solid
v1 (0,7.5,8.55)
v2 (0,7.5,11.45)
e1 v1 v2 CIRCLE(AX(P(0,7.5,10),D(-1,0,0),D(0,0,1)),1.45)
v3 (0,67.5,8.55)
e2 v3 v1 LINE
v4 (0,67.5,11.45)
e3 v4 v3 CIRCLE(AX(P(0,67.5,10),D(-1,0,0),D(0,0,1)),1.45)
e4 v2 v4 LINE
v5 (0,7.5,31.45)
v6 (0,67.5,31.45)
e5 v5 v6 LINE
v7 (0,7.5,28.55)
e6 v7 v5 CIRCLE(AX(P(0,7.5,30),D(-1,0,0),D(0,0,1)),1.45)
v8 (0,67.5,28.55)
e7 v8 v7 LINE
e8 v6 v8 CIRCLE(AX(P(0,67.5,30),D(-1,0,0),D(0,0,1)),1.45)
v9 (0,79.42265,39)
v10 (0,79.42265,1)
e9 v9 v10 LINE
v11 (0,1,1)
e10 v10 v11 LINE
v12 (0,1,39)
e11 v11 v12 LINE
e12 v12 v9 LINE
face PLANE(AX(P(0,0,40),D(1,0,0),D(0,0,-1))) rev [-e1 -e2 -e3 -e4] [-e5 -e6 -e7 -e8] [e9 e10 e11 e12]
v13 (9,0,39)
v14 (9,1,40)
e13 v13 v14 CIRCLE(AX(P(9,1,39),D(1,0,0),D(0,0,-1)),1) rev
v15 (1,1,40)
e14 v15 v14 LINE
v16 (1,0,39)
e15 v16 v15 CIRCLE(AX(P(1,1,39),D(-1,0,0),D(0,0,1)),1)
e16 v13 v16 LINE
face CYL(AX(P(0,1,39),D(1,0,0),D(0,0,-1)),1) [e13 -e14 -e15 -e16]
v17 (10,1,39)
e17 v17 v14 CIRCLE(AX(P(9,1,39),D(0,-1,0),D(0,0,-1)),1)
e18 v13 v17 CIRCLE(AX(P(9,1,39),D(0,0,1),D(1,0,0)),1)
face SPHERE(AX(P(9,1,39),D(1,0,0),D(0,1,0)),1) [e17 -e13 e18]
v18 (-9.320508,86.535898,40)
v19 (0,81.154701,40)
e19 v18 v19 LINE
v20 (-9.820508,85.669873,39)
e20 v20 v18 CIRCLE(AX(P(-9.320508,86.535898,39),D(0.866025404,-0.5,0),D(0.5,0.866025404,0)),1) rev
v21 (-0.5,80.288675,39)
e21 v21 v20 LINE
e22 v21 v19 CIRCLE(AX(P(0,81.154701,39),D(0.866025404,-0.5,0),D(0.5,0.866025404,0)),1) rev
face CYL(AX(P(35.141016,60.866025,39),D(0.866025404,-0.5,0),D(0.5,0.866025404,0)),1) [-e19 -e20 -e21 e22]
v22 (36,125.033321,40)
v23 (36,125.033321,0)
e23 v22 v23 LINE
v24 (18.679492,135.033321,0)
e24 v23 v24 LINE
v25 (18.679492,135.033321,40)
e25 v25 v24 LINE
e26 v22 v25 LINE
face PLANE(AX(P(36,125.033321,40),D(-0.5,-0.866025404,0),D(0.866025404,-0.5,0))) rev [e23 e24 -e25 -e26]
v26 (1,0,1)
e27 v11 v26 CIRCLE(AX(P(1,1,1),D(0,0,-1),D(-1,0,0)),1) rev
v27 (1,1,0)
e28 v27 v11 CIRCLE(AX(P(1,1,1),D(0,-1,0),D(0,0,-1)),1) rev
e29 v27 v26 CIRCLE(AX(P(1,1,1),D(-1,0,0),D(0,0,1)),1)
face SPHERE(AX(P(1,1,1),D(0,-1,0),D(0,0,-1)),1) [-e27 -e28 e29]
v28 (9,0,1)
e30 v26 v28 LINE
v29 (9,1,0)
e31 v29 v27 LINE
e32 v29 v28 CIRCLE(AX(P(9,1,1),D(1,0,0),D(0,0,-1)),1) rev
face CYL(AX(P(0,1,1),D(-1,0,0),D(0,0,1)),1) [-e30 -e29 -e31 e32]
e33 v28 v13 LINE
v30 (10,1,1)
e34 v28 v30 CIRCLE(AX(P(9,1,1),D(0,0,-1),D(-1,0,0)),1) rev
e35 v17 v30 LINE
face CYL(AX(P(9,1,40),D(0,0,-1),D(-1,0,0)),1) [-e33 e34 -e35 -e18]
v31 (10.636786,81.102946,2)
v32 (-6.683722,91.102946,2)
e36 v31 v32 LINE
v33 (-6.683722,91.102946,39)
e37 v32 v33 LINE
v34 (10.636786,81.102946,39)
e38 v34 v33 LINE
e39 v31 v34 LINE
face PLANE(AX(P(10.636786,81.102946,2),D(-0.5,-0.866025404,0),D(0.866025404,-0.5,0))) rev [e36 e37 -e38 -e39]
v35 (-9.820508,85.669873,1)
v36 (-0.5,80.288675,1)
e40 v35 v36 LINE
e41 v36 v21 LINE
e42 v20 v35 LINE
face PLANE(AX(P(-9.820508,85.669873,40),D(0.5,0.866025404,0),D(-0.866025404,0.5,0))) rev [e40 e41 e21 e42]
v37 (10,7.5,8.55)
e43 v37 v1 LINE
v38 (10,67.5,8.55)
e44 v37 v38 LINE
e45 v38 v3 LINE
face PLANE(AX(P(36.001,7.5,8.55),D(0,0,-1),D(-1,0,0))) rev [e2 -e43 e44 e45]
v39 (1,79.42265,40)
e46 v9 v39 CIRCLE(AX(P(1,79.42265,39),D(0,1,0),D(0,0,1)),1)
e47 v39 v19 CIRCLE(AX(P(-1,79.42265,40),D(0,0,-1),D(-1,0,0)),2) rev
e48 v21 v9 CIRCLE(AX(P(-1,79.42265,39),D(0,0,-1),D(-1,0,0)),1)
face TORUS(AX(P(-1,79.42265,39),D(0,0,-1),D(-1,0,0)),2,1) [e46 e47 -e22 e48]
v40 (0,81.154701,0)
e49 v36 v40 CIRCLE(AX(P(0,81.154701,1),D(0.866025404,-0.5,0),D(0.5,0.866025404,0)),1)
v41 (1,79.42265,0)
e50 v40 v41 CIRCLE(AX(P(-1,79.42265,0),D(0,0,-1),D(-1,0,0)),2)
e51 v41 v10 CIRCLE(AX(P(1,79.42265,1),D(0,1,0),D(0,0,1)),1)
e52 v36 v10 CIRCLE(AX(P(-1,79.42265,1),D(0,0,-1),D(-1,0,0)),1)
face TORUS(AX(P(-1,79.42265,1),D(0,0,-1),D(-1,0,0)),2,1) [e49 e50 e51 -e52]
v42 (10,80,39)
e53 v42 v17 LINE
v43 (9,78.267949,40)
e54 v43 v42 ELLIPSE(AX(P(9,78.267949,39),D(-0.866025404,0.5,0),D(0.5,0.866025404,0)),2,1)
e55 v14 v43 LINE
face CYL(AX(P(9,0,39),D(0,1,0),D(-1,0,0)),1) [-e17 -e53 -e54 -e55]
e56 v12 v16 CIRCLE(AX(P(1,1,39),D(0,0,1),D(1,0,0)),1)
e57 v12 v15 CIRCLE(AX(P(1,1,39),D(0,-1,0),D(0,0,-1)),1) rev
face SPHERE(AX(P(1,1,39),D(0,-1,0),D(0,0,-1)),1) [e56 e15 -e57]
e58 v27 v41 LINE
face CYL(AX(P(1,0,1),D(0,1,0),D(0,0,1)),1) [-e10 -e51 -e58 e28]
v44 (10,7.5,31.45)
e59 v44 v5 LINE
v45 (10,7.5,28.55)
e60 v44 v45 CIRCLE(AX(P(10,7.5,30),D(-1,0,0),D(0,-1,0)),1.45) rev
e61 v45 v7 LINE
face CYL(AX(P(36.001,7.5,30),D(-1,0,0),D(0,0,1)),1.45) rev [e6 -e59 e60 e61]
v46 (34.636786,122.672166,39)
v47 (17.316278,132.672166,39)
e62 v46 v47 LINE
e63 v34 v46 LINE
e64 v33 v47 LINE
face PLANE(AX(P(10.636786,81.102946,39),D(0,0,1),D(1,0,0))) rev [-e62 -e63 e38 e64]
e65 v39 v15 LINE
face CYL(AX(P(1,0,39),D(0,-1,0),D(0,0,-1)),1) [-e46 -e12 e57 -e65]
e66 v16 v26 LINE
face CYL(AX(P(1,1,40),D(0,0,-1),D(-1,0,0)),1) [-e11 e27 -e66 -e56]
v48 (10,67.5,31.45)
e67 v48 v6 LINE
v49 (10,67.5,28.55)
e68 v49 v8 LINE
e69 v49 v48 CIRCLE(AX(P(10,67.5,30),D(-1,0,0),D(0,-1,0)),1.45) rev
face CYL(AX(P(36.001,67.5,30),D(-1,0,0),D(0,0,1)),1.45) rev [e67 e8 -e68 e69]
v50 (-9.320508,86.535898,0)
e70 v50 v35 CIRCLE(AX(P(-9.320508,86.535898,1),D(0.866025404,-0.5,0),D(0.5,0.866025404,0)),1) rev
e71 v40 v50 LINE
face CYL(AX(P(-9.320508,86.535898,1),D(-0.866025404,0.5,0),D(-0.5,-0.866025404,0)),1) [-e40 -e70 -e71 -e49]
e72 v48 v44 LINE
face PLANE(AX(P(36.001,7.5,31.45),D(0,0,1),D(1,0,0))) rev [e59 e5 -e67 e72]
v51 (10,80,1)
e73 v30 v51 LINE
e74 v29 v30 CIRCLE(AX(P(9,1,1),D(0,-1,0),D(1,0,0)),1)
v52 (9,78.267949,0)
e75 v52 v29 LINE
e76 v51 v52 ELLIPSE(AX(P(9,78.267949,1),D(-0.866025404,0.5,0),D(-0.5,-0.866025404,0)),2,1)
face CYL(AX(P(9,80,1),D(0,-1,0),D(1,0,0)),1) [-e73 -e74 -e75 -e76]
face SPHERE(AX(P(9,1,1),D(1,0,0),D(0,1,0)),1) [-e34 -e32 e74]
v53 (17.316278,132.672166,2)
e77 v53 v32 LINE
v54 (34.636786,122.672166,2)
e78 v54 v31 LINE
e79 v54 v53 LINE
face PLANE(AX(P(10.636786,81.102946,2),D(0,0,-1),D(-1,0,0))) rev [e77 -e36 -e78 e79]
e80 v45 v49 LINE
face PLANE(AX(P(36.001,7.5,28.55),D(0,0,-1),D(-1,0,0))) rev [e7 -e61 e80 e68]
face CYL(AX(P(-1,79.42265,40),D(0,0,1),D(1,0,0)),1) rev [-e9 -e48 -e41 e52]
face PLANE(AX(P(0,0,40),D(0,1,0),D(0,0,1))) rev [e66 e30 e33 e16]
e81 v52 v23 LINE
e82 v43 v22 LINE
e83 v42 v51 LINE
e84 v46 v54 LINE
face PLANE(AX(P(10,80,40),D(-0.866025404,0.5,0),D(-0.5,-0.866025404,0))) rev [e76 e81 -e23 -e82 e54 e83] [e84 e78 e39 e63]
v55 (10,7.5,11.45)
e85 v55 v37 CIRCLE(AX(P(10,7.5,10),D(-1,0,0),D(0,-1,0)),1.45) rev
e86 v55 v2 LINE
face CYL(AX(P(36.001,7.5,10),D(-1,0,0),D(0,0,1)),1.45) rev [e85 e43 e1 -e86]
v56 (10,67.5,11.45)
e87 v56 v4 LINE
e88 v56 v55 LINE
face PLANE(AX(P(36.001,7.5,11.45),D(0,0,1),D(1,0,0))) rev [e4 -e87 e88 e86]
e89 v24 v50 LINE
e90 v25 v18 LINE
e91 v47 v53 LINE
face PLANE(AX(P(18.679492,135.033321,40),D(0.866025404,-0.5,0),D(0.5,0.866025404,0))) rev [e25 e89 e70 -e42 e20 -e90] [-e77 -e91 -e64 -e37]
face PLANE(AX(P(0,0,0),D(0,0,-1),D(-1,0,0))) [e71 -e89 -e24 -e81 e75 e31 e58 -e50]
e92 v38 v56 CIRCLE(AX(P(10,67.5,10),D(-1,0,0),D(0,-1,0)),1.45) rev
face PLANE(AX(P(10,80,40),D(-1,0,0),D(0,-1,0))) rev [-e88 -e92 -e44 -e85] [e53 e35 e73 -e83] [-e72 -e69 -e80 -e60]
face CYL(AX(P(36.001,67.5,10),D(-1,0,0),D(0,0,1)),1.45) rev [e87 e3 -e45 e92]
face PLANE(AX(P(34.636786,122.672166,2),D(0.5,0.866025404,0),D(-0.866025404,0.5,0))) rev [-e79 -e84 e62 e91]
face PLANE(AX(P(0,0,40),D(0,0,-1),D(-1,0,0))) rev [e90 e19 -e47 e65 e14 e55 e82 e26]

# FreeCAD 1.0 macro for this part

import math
import FreeCAD as App
import Part
import Sketcher
from FreeCAD import Vector
Q = App.Units.Quantity


def edges_at(feature, points):
    """Names of the edges that pass closest to the given points."""
    edges = feature.Shape.Edges
    near = lambda p: min(range(len(edges)), key=lambda i: edges[i].distToShape(Part.Vertex(*p))[0])
    return sorted({f"Edge{near(p) + 1}" for p in points})

doc = App.newDocument("Part")
body = doc.addObject("PartDesign::Body", "Body")

# Sketch on XY plane
sketch1 = body.newObject("Sketcher::SketchObject", "Sketch")
sketch1.AttachmentSupport = (doc.getObject("XY_Plane"), [""])
sketch1.MapMode = "FlatFace"
sketch1.addGeometry(Part.LineSegment(Vector(0, 0, 0), Vector(10, 0, 0)), False)
sketch1.addGeometry(Part.LineSegment(Vector(10, 0, 0), Vector(10, 80, 0)), False)
sketch1.addGeometry(Part.LineSegment(Vector(10, 80, 0), Vector(36, 125, 0)), False)
sketch1.addGeometry(Part.LineSegment(Vector(36, 125, 0), Vector(19, 135, 0)), False)
sketch1.addGeometry(Part.LineSegment(Vector(19, 135, 0), Vector(-10, 86, 0)), False)
sketch1.addGeometry(Part.LineSegment(Vector(-10, 86, 0), Vector(0, 80, 0)), False)
sketch1.addGeometry(Part.LineSegment(Vector(0, 80, 0), Vector(0, 0, 0)), False)
sketch1.addConstraint(Sketcher.Constraint("Coincident", 0, 2, 1, 1))
sketch1.addConstraint(Sketcher.Constraint("Coincident", 1, 2, 2, 1))
sketch1.addConstraint(Sketcher.Constraint("Coincident", 2, 2, 3, 1))
sketch1.addConstraint(Sketcher.Constraint("Coincident", 3, 2, 4, 1))
sketch1.addConstraint(Sketcher.Constraint("Coincident", 4, 2, 5, 1))
sketch1.addConstraint(Sketcher.Constraint("Coincident", 5, 2, 6, 1))
sketch1.addConstraint(Sketcher.Constraint("Coincident", 6, 2, 0, 1))
sketch1.addConstraint(Sketcher.Constraint("Horizontal", 0))
sketch1.addConstraint(Sketcher.Constraint("Vertical", 1))
sketch1.addConstraint(Sketcher.Constraint("Vertical", 6))
sketch1.addConstraint(Sketcher.Constraint("Coincident", 6, 2, -1, 1))
sketch1.addConstraint(Sketcher.Constraint("Perpendicular", 2, 3))
sketch1.addConstraint(Sketcher.Constraint("Perpendicular", 3, 4))
sketch1.addConstraint(Sketcher.Constraint("Perpendicular", 4, 5))
sketch1.addConstraint(Sketcher.Constraint("Horizontal", 1, 2, 5, 2))
sketch1.addConstraint(Sketcher.Constraint("DistanceX", 0, 1, 0, 2, 10.0))
sketch1.addConstraint(Sketcher.Constraint("DistanceY", 1, 1, 1, 2, 80.0))
sketch1.addConstraint(Sketcher.Constraint("Angle", 2, Q("60 deg")))
sketch1.addConstraint(Sketcher.Constraint("Distance", 2, 52.0))
sketch1.addConstraint(Sketcher.Constraint("Distance", 3, 20.0))
pad1 = body.newObject("PartDesign::Pad", "Pad")
pad1.Profile = sketch1
pad1.Length = 40
doc.recompute()

fillet = body.newObject("PartDesign::Fillet", "Fillet")
fillet.Base = (pad1, edges_at(pad1, [
    (0, 40, 0),
    (0, 80, 20),
    (10, 40, 40),
    (10, 0, 20),
    (0, 0, 20),
    (-4.91, 82.835, 40),
    (0, 40, 40),
    (-4.91, 82.835, 0),
    (5, 0, 40),
    (10, 40, 0),
    (5, 0, 0),
]))
fillet.Radius = 1

# Sketch on YZ plane
sketch2 = body.newObject("Sketcher::SketchObject", "Sketch001")
sketch2.AttachmentSupport = (doc.getObject("YZ_Plane"), [""])
sketch2.MapMode = "FlatFace"
sketch2.addGeometry(Part.LineSegment(Vector(67.5, 8.6, 0), Vector(7.5, 8.6, 0)), False)
sketch2.addGeometry(Part.ArcOfCircle(Part.Circle(Vector(7.5, 10, 0), Vector(0, 0, 1), 1.4), math.radians(90), math.radians(270)), False)
sketch2.addGeometry(Part.LineSegment(Vector(7.5, 11.4, 0), Vector(67.5, 11.4, 0)), False)
sketch2.addGeometry(Part.ArcOfCircle(Part.Circle(Vector(67.5, 10, 0), Vector(0, 0, 1), 1.4), math.radians(-90), math.radians(90)), False)
sketch2.addConstraint(Sketcher.Constraint("Tangent", 0, 2, 1, 2))
sketch2.addConstraint(Sketcher.Constraint("Tangent", 1, 1, 2, 1))
sketch2.addConstraint(Sketcher.Constraint("Tangent", 2, 2, 3, 2))
sketch2.addConstraint(Sketcher.Constraint("Tangent", 3, 1, 0, 1))
sketch2.addConstraint(Sketcher.Constraint("Horizontal", 0))
sketch2.addConstraint(Sketcher.Constraint("Horizontal", 2))
sketch2.addConstraint(Sketcher.Constraint("DistanceX", 0, 2, 0, 1, 60.0))
sketch2.addConstraint(Sketcher.Constraint("Radius", 1, 1.45))
sketch2.addConstraint(Sketcher.Constraint("DistanceY", -1, 1, 1, 3, 10.0))
sketch2.addConstraint(Sketcher.Constraint("DistanceX", -1, 1, 1, 3, 7.5))
pocket1 = body.newObject("PartDesign::Pocket", "Pocket")
pocket1.Profile = sketch2
pocket1.Type = "UpToFirst"
pocket1.Reversed = True

# Sketch on YZ plane
sketch3 = body.newObject("Sketcher::SketchObject", "Sketch002")
sketch3.AttachmentSupport = (doc.getObject("YZ_Plane"), [""])
sketch3.MapMode = "FlatFace"
sketch3.addGeometry(Part.LineSegment(Vector(67.5, 28.6, 0), Vector(7.5, 28.6, 0)), False)
sketch3.addGeometry(Part.ArcOfCircle(Part.Circle(Vector(7.5, 30, 0), Vector(0, 0, 1), 1.4), math.radians(90), math.radians(270)), False)
sketch3.addGeometry(Part.LineSegment(Vector(7.5, 31.4, 0), Vector(67.5, 31.4, 0)), False)
sketch3.addGeometry(Part.ArcOfCircle(Part.Circle(Vector(67.5, 30, 0), Vector(0, 0, 1), 1.4), math.radians(-90), math.radians(90)), False)
sketch3.addConstraint(Sketcher.Constraint("Tangent", 0, 2, 1, 2))
sketch3.addConstraint(Sketcher.Constraint("Tangent", 1, 1, 2, 1))
sketch3.addConstraint(Sketcher.Constraint("Tangent", 2, 2, 3, 2))
sketch3.addConstraint(Sketcher.Constraint("Tangent", 3, 1, 0, 1))
sketch3.addConstraint(Sketcher.Constraint("Horizontal", 0))
sketch3.addConstraint(Sketcher.Constraint("Horizontal", 2))
sketch3.addConstraint(Sketcher.Constraint("DistanceX", 0, 2, 0, 1, 60.0))
sketch3.addConstraint(Sketcher.Constraint("Radius", 1, 1.45))
sketch3.addConstraint(Sketcher.Constraint("DistanceY", -1, 1, 1, 3, 30.0))
sketch3.addConstraint(Sketcher.Constraint("DistanceX", -1, 1, 1, 3, 7.5))
pocket2 = body.newObject("PartDesign::Pocket", "Pocket001")
pocket2.Profile = sketch3
pocket2.Type = "UpToFirst"
pocket2.Reversed = True

# Sketch on an angled plane
sketch4 = body.newObject("Sketcher::SketchObject", "Sketch003")
sketch4.Placement = App.Placement(Vector(-44.461524, 25.669873, 0), App.Rotation(Vector(0, 0, 1), Vector(0.5, 0.866025404, 0), Vector(-0.866025404, 0.5, 0), "ZXY"))
sketch4.addGeometry(Part.LineSegment(Vector(2, 124, 0), Vector(2, 76, 0)), False)
sketch4.addGeometry(Part.LineSegment(Vector(2, 76, 0), Vector(39, 76, 0)), False)
sketch4.addGeometry(Part.LineSegment(Vector(39, 76, 0), Vector(39, 124, 0)), False)
sketch4.addGeometry(Part.LineSegment(Vector(39, 124, 0), Vector(2, 124, 0)), False)
sketch4.addConstraint(Sketcher.Constraint("Coincident", 0, 2, 1, 1))
sketch4.addConstraint(Sketcher.Constraint("Coincident", 1, 2, 2, 1))
sketch4.addConstraint(Sketcher.Constraint("Coincident", 2, 2, 3, 1))
sketch4.addConstraint(Sketcher.Constraint("Coincident", 3, 2, 0, 1))
sketch4.addConstraint(Sketcher.Constraint("Vertical", 0))
sketch4.addConstraint(Sketcher.Constraint("Horizontal", 1))
sketch4.addConstraint(Sketcher.Constraint("Vertical", 2))
sketch4.addConstraint(Sketcher.Constraint("Horizontal", 3))
sketch4.addConstraint(Sketcher.Constraint("DistanceX", 1, 1, 1, 2, 37.0))
sketch4.addConstraint(Sketcher.Constraint("DistanceY", 0, 2, 0, 1, 48.0))
sketch4.addConstraint(Sketcher.Constraint("DistanceX", -1, 1, 0, 2, 2.0))
sketch4.addConstraint(Sketcher.Constraint("DistanceY", -1, 1, 0, 2, 75.555605))
pocket3 = body.newObject("PartDesign::Pocket", "Pocket002")
pocket3.Profile = sketch4
pocket3.Length = 20

doc.recompute()
